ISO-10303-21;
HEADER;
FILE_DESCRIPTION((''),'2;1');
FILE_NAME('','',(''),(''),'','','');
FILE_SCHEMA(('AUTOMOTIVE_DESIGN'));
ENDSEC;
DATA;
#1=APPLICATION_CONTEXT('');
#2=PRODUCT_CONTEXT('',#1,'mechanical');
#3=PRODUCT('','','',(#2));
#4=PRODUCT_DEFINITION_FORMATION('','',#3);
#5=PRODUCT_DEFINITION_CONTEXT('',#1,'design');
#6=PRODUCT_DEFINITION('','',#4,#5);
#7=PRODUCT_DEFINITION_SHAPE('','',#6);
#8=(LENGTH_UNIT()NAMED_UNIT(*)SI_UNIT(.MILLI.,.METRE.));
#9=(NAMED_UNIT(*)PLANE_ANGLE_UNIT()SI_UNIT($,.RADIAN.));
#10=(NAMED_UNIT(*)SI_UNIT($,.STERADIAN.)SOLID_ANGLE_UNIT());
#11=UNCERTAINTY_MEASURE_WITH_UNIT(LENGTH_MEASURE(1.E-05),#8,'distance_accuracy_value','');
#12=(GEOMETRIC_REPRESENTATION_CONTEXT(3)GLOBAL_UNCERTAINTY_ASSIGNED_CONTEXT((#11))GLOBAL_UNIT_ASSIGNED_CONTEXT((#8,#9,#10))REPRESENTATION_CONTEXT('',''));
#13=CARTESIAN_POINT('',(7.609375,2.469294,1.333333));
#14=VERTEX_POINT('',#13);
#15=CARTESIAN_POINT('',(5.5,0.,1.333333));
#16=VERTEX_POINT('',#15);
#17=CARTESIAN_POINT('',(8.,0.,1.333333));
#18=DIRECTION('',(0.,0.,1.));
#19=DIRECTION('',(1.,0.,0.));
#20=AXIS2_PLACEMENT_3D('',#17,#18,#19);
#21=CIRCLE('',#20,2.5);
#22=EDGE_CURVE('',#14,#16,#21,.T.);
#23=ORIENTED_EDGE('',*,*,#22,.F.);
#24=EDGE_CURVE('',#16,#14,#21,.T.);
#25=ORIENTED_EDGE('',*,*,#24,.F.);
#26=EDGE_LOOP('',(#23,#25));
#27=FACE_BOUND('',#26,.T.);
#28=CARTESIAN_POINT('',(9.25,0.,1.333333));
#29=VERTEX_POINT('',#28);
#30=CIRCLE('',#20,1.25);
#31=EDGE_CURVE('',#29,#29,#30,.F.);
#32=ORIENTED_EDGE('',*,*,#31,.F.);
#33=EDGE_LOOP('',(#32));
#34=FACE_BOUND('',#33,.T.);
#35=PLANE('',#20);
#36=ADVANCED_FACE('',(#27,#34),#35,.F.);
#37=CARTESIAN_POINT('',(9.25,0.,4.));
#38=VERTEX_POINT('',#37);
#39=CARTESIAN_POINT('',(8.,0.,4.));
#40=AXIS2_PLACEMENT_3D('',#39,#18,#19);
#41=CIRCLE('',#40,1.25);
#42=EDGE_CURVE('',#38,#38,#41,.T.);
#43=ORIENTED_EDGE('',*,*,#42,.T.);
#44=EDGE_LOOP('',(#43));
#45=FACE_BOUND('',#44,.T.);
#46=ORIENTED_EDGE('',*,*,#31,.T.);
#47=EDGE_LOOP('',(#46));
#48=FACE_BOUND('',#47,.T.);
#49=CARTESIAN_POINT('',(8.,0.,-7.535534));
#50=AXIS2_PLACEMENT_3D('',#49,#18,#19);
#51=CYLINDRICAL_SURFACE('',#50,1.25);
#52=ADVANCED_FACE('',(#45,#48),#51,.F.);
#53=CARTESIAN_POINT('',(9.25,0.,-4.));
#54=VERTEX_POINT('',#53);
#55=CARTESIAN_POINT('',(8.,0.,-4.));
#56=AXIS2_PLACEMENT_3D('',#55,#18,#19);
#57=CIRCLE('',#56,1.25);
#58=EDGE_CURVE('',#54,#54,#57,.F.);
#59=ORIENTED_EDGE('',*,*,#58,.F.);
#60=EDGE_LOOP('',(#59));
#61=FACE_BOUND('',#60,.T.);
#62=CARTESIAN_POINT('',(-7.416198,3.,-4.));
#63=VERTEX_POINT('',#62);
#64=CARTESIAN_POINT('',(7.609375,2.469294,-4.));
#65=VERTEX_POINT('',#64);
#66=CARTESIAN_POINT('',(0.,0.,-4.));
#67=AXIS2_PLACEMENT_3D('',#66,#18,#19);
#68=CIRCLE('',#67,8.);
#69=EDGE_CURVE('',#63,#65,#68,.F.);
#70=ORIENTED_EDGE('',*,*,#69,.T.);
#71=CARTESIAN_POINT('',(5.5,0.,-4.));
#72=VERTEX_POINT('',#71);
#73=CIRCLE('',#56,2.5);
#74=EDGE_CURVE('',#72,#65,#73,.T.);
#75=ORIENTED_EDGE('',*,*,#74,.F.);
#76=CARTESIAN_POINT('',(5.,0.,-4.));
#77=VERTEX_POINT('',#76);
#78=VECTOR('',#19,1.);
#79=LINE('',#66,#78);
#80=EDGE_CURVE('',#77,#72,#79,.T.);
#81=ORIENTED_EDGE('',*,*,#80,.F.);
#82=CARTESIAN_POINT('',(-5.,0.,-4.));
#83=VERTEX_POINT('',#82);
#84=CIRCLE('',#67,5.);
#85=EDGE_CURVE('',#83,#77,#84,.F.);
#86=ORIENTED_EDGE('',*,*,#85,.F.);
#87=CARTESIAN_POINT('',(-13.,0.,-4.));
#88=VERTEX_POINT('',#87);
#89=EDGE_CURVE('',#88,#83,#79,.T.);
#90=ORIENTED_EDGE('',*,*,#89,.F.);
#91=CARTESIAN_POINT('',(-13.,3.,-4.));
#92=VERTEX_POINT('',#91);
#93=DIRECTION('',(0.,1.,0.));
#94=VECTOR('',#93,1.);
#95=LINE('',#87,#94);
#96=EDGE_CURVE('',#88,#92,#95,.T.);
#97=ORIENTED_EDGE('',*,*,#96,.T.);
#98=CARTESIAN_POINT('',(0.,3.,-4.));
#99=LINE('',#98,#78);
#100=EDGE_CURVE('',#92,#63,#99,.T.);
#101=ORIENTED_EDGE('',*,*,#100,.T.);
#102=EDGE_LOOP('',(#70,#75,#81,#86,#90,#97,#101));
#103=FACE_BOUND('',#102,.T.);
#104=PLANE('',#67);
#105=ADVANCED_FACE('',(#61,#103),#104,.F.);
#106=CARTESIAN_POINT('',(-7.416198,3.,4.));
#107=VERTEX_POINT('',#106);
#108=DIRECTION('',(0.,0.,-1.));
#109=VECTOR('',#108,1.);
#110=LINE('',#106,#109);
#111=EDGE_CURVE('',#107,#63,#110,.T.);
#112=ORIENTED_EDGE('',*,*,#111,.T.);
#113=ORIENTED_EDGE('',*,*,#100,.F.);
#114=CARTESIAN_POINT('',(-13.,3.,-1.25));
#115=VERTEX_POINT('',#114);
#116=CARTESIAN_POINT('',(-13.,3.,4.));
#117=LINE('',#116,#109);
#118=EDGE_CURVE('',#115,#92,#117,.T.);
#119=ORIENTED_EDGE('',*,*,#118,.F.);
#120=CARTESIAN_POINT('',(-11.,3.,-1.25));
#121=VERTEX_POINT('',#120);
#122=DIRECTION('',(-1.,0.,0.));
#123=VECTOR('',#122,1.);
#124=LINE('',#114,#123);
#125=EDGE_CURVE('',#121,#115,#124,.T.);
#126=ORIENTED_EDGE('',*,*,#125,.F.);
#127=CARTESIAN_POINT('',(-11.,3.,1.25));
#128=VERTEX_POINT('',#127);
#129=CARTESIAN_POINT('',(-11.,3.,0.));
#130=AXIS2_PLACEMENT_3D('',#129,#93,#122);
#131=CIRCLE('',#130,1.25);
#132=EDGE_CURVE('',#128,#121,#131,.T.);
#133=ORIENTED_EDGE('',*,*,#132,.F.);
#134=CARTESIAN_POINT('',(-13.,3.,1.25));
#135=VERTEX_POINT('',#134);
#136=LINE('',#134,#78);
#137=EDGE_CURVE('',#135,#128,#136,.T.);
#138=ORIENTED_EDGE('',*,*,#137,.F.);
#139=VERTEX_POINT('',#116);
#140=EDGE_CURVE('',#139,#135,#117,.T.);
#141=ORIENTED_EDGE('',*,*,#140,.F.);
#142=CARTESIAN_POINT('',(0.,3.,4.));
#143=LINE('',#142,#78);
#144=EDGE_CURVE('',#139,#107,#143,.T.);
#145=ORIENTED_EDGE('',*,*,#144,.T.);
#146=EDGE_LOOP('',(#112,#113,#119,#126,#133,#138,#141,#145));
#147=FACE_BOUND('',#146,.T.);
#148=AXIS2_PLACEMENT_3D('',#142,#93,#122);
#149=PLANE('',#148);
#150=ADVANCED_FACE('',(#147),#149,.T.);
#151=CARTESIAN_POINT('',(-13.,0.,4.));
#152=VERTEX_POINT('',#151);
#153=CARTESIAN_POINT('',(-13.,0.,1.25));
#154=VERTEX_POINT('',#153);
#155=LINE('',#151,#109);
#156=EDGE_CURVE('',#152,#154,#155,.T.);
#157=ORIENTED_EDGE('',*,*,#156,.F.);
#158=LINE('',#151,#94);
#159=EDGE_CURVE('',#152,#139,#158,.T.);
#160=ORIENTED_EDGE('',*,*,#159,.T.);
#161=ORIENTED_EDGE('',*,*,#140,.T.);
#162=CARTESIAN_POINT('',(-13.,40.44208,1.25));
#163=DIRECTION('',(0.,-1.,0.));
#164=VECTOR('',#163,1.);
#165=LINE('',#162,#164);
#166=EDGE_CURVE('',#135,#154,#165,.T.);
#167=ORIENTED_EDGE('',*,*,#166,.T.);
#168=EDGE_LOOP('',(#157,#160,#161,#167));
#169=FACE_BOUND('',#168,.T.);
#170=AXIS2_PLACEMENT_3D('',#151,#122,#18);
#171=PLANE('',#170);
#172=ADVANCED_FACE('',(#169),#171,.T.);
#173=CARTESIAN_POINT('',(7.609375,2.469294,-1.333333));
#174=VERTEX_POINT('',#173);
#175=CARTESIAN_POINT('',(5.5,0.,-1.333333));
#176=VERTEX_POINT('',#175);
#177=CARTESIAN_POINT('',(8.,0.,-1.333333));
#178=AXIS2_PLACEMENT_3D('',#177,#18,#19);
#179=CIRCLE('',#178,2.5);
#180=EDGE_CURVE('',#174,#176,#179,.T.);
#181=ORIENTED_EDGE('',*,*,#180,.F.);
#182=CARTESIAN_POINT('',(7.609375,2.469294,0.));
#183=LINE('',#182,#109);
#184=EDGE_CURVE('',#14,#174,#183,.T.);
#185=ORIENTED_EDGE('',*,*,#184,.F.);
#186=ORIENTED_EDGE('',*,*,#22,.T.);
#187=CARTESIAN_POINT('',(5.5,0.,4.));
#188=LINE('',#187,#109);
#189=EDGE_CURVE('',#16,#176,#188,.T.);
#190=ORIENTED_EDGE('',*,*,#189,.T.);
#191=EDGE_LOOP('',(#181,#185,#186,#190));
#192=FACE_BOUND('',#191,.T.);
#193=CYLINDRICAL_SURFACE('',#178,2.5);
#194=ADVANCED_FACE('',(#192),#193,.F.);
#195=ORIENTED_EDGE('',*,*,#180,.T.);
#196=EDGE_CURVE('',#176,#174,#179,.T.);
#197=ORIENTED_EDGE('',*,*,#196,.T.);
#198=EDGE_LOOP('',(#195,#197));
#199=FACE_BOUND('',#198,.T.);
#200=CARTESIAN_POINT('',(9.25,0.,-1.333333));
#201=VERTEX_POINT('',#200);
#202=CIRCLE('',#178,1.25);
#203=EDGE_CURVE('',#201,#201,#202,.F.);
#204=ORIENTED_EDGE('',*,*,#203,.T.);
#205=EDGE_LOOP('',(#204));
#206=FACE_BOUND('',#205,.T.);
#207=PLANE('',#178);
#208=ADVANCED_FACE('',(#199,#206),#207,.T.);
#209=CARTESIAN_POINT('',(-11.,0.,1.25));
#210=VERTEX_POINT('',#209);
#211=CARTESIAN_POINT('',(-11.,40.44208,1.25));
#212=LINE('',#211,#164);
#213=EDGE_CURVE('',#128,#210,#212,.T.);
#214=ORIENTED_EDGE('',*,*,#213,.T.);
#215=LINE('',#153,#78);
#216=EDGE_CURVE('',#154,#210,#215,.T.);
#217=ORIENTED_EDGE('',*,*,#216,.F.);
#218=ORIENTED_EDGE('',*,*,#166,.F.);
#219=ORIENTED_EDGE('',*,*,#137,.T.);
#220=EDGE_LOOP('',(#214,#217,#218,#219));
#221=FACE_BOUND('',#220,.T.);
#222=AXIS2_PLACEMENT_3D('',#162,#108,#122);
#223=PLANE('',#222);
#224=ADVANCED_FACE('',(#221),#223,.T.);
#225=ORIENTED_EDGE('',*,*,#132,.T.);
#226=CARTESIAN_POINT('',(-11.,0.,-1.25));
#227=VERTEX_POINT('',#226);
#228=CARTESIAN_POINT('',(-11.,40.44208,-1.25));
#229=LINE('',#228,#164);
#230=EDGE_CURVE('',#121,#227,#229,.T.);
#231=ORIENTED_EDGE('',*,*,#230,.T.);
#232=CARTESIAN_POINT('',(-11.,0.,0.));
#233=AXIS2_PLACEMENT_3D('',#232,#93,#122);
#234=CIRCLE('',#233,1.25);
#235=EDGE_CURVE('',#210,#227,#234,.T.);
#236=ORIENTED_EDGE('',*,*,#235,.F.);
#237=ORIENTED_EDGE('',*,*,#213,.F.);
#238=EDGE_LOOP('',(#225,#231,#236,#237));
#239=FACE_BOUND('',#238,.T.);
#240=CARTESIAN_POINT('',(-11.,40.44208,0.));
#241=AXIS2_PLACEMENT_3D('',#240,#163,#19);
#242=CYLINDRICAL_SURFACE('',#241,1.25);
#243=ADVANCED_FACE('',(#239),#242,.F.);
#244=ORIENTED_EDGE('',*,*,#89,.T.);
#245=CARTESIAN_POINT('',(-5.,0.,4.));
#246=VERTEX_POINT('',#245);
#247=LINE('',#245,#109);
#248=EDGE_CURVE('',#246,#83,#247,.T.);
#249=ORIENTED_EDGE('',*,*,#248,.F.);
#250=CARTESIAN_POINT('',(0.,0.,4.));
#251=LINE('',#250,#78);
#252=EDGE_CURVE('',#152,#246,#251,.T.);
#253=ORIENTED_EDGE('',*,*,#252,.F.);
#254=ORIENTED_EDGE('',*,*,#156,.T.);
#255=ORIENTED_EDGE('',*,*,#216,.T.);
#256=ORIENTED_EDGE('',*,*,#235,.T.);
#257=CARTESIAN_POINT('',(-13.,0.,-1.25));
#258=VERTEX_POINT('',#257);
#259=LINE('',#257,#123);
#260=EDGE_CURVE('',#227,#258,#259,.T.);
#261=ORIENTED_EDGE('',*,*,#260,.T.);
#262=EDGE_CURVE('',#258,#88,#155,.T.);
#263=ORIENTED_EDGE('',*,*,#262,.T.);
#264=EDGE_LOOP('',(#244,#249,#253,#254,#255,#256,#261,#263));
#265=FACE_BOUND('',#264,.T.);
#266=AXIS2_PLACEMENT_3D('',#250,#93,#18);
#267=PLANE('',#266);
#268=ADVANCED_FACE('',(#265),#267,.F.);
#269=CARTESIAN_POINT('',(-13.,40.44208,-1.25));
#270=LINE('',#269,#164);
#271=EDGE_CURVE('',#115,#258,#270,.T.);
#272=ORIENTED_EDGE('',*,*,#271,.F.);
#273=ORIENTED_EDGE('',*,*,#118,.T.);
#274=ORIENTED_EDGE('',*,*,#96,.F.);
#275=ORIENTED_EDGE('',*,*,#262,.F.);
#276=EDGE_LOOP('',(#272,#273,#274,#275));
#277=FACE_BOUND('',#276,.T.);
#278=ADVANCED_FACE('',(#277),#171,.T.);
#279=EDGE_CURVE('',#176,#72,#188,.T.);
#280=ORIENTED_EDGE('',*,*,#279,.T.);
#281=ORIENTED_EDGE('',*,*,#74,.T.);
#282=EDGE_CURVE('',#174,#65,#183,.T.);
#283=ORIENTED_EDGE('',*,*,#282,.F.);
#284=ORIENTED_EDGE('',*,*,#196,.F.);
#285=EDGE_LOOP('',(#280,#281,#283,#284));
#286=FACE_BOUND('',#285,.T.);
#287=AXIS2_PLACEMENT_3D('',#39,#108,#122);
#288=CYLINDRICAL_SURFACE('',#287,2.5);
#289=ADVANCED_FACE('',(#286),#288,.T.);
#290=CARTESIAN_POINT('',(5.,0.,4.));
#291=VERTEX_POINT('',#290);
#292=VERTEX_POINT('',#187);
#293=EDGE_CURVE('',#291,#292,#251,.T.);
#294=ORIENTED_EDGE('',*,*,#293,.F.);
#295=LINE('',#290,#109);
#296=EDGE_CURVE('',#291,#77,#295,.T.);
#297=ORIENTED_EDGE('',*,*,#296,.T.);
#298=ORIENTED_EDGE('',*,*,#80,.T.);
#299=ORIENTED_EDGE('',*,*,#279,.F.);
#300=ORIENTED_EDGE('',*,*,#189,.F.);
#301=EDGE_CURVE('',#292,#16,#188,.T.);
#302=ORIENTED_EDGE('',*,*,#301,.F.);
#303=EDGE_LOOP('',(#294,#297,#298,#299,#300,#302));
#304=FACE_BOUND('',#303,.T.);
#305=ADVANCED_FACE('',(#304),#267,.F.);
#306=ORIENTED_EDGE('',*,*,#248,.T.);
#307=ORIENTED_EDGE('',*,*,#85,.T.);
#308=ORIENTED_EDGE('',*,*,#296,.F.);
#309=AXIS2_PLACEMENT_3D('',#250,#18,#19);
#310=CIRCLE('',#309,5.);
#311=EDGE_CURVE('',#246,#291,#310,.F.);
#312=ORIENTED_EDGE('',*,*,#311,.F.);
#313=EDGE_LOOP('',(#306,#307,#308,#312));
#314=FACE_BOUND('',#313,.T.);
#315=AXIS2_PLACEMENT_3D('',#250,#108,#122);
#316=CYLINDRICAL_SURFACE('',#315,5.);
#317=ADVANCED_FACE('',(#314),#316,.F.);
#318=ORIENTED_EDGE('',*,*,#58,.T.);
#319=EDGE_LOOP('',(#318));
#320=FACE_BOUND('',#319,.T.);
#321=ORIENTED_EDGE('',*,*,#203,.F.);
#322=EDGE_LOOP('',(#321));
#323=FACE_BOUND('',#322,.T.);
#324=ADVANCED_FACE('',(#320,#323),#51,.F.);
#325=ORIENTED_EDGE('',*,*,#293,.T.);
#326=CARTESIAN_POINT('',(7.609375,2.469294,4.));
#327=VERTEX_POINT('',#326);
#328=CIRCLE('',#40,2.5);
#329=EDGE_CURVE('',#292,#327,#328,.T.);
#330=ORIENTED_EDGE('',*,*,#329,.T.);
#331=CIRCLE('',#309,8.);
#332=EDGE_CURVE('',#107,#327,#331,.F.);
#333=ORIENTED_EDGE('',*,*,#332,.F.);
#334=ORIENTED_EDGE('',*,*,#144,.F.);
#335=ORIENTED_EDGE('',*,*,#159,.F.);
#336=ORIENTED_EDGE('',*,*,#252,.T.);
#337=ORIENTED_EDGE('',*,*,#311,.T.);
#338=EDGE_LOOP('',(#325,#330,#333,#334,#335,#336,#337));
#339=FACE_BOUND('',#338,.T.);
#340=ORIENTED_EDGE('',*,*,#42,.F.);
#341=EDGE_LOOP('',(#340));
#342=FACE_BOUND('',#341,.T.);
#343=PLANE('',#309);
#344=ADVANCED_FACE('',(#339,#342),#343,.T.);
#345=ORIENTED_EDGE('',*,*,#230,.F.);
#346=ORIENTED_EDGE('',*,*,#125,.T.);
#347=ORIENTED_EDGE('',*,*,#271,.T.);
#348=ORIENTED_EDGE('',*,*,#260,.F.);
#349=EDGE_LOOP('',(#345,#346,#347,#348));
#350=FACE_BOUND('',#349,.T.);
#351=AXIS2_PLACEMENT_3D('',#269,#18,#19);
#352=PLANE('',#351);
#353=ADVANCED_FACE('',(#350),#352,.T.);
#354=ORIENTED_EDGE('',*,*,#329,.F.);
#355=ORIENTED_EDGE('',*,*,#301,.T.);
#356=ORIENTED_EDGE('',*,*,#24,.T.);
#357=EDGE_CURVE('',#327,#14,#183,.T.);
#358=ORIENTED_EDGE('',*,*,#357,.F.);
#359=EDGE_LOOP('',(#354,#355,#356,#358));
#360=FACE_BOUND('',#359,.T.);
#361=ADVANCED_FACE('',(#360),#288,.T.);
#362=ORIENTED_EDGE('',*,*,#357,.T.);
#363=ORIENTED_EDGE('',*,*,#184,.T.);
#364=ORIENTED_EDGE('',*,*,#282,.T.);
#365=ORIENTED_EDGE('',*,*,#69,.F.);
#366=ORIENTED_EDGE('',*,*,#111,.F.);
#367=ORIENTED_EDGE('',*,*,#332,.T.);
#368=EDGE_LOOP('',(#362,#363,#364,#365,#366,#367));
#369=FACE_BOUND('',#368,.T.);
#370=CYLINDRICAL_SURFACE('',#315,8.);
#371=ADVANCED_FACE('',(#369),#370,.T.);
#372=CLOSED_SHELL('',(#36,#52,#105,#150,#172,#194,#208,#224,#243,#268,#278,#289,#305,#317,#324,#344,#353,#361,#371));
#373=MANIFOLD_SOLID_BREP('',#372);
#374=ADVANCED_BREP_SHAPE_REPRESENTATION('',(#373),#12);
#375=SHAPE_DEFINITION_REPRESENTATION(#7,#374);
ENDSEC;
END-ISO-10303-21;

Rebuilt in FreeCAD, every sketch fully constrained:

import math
import FreeCAD as App
import Part
import Sketcher
from FreeCAD import Vector
Q = App.Units.Quantity

doc = App.newDocument("Part")
params = doc.addObject("Spreadsheet::Sheet", "Params")
for row, (alias, value) in enumerate([
    ("sketch1_radius", "8 mm"),
    ("sketch1_radius2", "5 mm"),
    ("sketch1_width", "8 mm"),
    ("pad1_length", "8 mm"),
    ("sketch2_diameter", "5 mm"),
    ("pad2_length", "8 mm"),
    ("sketch3_diameter", "2.5 mm"),
    ("pocket1_length", "8 mm"),
    ("sketch4_diameter", "5 mm"),
    ("pocket2_length", "2.666667 mm"),
    ("sketch5_width", "2 mm"),
    ("sketch5_radius", "1.25 mm"),
], start=1):
    params.set(f"A{row}", alias)
    params.set(f"B{row}", "=" + value)
    params.setAlias(f"B{row}", alias)

body = doc.addObject("PartDesign::Body", "Body")

sketch1 = body.newObject("Sketcher::SketchObject", "Sketch")
sketch1.AttachmentSupport = (doc.getObject("XY_Plane"), [""])
sketch1.MapMode = "FlatFace"
sketch1.addGeometry(Part.ArcOfCircle(Part.Circle(Vector(0, 0, 0), Vector(0, 0, 1), 8), math.radians(0), math.radians(158)), False)
sketch1.addGeometry(Part.LineSegment(Vector(-7.4, 3, 0), Vector(-13, 3, 0)), False)
sketch1.addGeometry(Part.LineSegment(Vector(-13, 3, 0), Vector(-13, 0, 0)), False)
sketch1.addGeometry(Part.LineSegment(Vector(-13, 0, 0), Vector(-5, 0, 0)), False)
sketch1.addGeometry(Part.ArcOfCircle(Part.Circle(Vector(0, 0, 0), Vector(0, 0, 1), 5), math.radians(0), math.radians(180)), False)
sketch1.addGeometry(Part.LineSegment(Vector(5, 0, 0), Vector(8, 0, 0)), False)
sketch1.addConstraint(Sketcher.Constraint("Coincident", 0, 2, 1, 1))
sketch1.addConstraint(Sketcher.Constraint("Coincident", 1, 2, 2, 1))
sketch1.addConstraint(Sketcher.Constraint("Coincident", 2, 2, 3, 1))
sketch1.addConstraint(Sketcher.Constraint("Coincident", 3, 2, 4, 2))
sketch1.addConstraint(Sketcher.Constraint("Coincident", 4, 1, 5, 1))
sketch1.addConstraint(Sketcher.Constraint("Coincident", 5, 2, 0, 1))
sketch1.addConstraint(Sketcher.Constraint("Horizontal", 1))
sketch1.addConstraint(Sketcher.Constraint("Vertical", 2))
sketch1.addConstraint(Sketcher.Constraint("Horizontal", 3))
sketch1.addConstraint(Sketcher.Constraint("Horizontal", 5))
sketch1.addConstraint(Sketcher.Constraint("Coincident", 0, 3, -1, 1))
sketch1.addConstraint(Sketcher.Constraint("Coincident", 4, 3, -1, 1))
sketch1.addConstraint(Sketcher.Constraint("PointOnObject", 2, 2, -1))
sketch1.addConstraint(Sketcher.Constraint("PointOnObject", 4, 1, -1))
sketch1.addConstraint(Sketcher.Constraint("Equal", 5, 2))
sketch1.addConstraint(Sketcher.Constraint("Radius", 0, Q("8 mm")))
sketch1.addConstraint(Sketcher.Constraint("Radius", 4, Q("5 mm")))
sketch1.addConstraint(Sketcher.Constraint("DistanceX", 3, 1, 3, 2, Q("8 mm")))
sketch1.setExpression("Constraints[15]", "Params.sketch1_radius")
sketch1.setExpression("Constraints[16]", "Params.sketch1_radius2")
sketch1.setExpression("Constraints[17]", "Params.sketch1_width")
pad1 = body.newObject("PartDesign::Pad", "Pad")
pad1.Profile = sketch1
pad1.setExpression("Length", "Params.pad1_length")
pad1.Midplane = True

sketch2 = body.newObject("Sketcher::SketchObject", "Sketch001")
sketch2.AttachmentSupport = (doc.getObject("XY_Plane"), [""])
sketch2.MapMode = "FlatFace"
sketch2.addGeometry(Part.Circle(Vector(8, 0, 0), Vector(0, 0, 1), 2.5), False)
sketch2.addConstraint(Sketcher.Constraint("PointOnObject", 0, 3, -1))
sketch2.addConstraint(Sketcher.Constraint("Diameter", 0, Q("5 mm")))
sketch2.addConstraint(Sketcher.Constraint("DistanceX", -1, 1, 0, 3, Q("8 mm")))
sketch2.setExpression("Constraints[1]", "Params.sketch2_diameter")
pad2 = body.newObject("PartDesign::Pad", "Pad001")
pad2.Profile = sketch2
pad2.setExpression("Length", "Params.pad2_length")
pad2.Midplane = True

sketch3 = body.newObject("Sketcher::SketchObject", "Sketch002")
sketch3.AttachmentSupport = (doc.getObject("XY_Plane"), [""])
sketch3.MapMode = "FlatFace"
sketch3.AttachmentOffset = App.Placement(Vector(0, 0, 4), App.Rotation())
sketch3.addGeometry(Part.Circle(Vector(8, 0, 0), Vector(0, 0, 1), 1.2), False)
sketch3.addConstraint(Sketcher.Constraint("PointOnObject", 0, 3, -1))
sketch3.addConstraint(Sketcher.Constraint("Diameter", 0, Q("2.5 mm")))
sketch3.addConstraint(Sketcher.Constraint("DistanceX", -1, 1, 0, 3, Q("8 mm")))
sketch3.setExpression("Constraints[1]", "Params.sketch3_diameter")
pocket1 = body.newObject("PartDesign::Pocket", "Pocket")
pocket1.Profile = sketch3
pocket1.setExpression("Length", "Params.pocket1_length")

sketch4 = body.newObject("Sketcher::SketchObject", "Sketch003")
sketch4.AttachmentSupport = (doc.getObject("XY_Plane"), [""])
sketch4.MapMode = "FlatFace"
sketch4.addGeometry(Part.Circle(Vector(8, 0, 0), Vector(0, 0, 1), 2.5), False)
sketch4.addConstraint(Sketcher.Constraint("PointOnObject", 0, 3, -1))
sketch4.addConstraint(Sketcher.Constraint("Diameter", 0, Q("5 mm")))
sketch4.addConstraint(Sketcher.Constraint("DistanceX", -1, 1, 0, 3, Q("8 mm")))
sketch4.setExpression("Constraints[1]", "Params.sketch4_diameter")
pocket2 = body.newObject("PartDesign::Pocket", "Pocket001")
pocket2.Profile = sketch4
pocket2.setExpression("Length", "Params.pocket2_length")
pocket2.Midplane = True

sketch5 = body.newObject("Sketcher::SketchObject", "Sketch004")
sketch5.AttachmentSupport = (doc.getObject("XZ_Plane"), [""])
sketch5.MapMode = "FlatFace"
sketch5.AttachmentOffset = App.Placement(Vector(0, 0, -3), App.Rotation())
sketch5.addGeometry(Part.LineSegment(Vector(-11, -1.2, 0), Vector(-13, -1.2, 0)), False)
sketch5.addGeometry(Part.LineSegment(Vector(-13, -1.2, 0), Vector(-13, 1.2, 0)), False)
sketch5.addGeometry(Part.LineSegment(Vector(-13, 1.2, 0), Vector(-11, 1.2, 0)), False)
sketch5.addGeometry(Part.ArcOfCircle(Part.Circle(Vector(-11, 0, 0), Vector(0, 0, 1), 1.2), math.radians(-90), math.radians(90)), False)
sketch5.addConstraint(Sketcher.Constraint("Coincident", 0, 2, 1, 1))
sketch5.addConstraint(Sketcher.Constraint("Coincident", 1, 2, 2, 1))
sketch5.addConstraint(Sketcher.Constraint("Tangent", 2, 2, 3, 2))
sketch5.addConstraint(Sketcher.Constraint("Tangent", 3, 1, 0, 1))
sketch5.addConstraint(Sketcher.Constraint("Horizontal", 0))
sketch5.addConstraint(Sketcher.Constraint("Vertical", 1))
sketch5.addConstraint(Sketcher.Constraint("Horizontal", 2))
sketch5.addConstraint(Sketcher.Constraint("PointOnObject", 3, 3, -1))
sketch5.addConstraint(Sketcher.Constraint("DistanceX", 0, 2, 0, 1, Q("2 mm")))
sketch5.addConstraint(Sketcher.Constraint("Radius", 3, Q("1.25 mm")))
sketch5.addConstraint(Sketcher.Constraint("DistanceX", 3, 3, -1, 1, Q("11 mm")))
sketch5.setExpression("Constraints[8]", "Params.sketch5_width")
sketch5.setExpression("Constraints[9]", "Params.sketch5_radius")
pocket3 = body.newObject("PartDesign::Pocket", "Pocket002")
pocket3.Profile = sketch5
pocket3.Type = "ThroughAll"
pocket3.Midplane = True

doc.recompute()
